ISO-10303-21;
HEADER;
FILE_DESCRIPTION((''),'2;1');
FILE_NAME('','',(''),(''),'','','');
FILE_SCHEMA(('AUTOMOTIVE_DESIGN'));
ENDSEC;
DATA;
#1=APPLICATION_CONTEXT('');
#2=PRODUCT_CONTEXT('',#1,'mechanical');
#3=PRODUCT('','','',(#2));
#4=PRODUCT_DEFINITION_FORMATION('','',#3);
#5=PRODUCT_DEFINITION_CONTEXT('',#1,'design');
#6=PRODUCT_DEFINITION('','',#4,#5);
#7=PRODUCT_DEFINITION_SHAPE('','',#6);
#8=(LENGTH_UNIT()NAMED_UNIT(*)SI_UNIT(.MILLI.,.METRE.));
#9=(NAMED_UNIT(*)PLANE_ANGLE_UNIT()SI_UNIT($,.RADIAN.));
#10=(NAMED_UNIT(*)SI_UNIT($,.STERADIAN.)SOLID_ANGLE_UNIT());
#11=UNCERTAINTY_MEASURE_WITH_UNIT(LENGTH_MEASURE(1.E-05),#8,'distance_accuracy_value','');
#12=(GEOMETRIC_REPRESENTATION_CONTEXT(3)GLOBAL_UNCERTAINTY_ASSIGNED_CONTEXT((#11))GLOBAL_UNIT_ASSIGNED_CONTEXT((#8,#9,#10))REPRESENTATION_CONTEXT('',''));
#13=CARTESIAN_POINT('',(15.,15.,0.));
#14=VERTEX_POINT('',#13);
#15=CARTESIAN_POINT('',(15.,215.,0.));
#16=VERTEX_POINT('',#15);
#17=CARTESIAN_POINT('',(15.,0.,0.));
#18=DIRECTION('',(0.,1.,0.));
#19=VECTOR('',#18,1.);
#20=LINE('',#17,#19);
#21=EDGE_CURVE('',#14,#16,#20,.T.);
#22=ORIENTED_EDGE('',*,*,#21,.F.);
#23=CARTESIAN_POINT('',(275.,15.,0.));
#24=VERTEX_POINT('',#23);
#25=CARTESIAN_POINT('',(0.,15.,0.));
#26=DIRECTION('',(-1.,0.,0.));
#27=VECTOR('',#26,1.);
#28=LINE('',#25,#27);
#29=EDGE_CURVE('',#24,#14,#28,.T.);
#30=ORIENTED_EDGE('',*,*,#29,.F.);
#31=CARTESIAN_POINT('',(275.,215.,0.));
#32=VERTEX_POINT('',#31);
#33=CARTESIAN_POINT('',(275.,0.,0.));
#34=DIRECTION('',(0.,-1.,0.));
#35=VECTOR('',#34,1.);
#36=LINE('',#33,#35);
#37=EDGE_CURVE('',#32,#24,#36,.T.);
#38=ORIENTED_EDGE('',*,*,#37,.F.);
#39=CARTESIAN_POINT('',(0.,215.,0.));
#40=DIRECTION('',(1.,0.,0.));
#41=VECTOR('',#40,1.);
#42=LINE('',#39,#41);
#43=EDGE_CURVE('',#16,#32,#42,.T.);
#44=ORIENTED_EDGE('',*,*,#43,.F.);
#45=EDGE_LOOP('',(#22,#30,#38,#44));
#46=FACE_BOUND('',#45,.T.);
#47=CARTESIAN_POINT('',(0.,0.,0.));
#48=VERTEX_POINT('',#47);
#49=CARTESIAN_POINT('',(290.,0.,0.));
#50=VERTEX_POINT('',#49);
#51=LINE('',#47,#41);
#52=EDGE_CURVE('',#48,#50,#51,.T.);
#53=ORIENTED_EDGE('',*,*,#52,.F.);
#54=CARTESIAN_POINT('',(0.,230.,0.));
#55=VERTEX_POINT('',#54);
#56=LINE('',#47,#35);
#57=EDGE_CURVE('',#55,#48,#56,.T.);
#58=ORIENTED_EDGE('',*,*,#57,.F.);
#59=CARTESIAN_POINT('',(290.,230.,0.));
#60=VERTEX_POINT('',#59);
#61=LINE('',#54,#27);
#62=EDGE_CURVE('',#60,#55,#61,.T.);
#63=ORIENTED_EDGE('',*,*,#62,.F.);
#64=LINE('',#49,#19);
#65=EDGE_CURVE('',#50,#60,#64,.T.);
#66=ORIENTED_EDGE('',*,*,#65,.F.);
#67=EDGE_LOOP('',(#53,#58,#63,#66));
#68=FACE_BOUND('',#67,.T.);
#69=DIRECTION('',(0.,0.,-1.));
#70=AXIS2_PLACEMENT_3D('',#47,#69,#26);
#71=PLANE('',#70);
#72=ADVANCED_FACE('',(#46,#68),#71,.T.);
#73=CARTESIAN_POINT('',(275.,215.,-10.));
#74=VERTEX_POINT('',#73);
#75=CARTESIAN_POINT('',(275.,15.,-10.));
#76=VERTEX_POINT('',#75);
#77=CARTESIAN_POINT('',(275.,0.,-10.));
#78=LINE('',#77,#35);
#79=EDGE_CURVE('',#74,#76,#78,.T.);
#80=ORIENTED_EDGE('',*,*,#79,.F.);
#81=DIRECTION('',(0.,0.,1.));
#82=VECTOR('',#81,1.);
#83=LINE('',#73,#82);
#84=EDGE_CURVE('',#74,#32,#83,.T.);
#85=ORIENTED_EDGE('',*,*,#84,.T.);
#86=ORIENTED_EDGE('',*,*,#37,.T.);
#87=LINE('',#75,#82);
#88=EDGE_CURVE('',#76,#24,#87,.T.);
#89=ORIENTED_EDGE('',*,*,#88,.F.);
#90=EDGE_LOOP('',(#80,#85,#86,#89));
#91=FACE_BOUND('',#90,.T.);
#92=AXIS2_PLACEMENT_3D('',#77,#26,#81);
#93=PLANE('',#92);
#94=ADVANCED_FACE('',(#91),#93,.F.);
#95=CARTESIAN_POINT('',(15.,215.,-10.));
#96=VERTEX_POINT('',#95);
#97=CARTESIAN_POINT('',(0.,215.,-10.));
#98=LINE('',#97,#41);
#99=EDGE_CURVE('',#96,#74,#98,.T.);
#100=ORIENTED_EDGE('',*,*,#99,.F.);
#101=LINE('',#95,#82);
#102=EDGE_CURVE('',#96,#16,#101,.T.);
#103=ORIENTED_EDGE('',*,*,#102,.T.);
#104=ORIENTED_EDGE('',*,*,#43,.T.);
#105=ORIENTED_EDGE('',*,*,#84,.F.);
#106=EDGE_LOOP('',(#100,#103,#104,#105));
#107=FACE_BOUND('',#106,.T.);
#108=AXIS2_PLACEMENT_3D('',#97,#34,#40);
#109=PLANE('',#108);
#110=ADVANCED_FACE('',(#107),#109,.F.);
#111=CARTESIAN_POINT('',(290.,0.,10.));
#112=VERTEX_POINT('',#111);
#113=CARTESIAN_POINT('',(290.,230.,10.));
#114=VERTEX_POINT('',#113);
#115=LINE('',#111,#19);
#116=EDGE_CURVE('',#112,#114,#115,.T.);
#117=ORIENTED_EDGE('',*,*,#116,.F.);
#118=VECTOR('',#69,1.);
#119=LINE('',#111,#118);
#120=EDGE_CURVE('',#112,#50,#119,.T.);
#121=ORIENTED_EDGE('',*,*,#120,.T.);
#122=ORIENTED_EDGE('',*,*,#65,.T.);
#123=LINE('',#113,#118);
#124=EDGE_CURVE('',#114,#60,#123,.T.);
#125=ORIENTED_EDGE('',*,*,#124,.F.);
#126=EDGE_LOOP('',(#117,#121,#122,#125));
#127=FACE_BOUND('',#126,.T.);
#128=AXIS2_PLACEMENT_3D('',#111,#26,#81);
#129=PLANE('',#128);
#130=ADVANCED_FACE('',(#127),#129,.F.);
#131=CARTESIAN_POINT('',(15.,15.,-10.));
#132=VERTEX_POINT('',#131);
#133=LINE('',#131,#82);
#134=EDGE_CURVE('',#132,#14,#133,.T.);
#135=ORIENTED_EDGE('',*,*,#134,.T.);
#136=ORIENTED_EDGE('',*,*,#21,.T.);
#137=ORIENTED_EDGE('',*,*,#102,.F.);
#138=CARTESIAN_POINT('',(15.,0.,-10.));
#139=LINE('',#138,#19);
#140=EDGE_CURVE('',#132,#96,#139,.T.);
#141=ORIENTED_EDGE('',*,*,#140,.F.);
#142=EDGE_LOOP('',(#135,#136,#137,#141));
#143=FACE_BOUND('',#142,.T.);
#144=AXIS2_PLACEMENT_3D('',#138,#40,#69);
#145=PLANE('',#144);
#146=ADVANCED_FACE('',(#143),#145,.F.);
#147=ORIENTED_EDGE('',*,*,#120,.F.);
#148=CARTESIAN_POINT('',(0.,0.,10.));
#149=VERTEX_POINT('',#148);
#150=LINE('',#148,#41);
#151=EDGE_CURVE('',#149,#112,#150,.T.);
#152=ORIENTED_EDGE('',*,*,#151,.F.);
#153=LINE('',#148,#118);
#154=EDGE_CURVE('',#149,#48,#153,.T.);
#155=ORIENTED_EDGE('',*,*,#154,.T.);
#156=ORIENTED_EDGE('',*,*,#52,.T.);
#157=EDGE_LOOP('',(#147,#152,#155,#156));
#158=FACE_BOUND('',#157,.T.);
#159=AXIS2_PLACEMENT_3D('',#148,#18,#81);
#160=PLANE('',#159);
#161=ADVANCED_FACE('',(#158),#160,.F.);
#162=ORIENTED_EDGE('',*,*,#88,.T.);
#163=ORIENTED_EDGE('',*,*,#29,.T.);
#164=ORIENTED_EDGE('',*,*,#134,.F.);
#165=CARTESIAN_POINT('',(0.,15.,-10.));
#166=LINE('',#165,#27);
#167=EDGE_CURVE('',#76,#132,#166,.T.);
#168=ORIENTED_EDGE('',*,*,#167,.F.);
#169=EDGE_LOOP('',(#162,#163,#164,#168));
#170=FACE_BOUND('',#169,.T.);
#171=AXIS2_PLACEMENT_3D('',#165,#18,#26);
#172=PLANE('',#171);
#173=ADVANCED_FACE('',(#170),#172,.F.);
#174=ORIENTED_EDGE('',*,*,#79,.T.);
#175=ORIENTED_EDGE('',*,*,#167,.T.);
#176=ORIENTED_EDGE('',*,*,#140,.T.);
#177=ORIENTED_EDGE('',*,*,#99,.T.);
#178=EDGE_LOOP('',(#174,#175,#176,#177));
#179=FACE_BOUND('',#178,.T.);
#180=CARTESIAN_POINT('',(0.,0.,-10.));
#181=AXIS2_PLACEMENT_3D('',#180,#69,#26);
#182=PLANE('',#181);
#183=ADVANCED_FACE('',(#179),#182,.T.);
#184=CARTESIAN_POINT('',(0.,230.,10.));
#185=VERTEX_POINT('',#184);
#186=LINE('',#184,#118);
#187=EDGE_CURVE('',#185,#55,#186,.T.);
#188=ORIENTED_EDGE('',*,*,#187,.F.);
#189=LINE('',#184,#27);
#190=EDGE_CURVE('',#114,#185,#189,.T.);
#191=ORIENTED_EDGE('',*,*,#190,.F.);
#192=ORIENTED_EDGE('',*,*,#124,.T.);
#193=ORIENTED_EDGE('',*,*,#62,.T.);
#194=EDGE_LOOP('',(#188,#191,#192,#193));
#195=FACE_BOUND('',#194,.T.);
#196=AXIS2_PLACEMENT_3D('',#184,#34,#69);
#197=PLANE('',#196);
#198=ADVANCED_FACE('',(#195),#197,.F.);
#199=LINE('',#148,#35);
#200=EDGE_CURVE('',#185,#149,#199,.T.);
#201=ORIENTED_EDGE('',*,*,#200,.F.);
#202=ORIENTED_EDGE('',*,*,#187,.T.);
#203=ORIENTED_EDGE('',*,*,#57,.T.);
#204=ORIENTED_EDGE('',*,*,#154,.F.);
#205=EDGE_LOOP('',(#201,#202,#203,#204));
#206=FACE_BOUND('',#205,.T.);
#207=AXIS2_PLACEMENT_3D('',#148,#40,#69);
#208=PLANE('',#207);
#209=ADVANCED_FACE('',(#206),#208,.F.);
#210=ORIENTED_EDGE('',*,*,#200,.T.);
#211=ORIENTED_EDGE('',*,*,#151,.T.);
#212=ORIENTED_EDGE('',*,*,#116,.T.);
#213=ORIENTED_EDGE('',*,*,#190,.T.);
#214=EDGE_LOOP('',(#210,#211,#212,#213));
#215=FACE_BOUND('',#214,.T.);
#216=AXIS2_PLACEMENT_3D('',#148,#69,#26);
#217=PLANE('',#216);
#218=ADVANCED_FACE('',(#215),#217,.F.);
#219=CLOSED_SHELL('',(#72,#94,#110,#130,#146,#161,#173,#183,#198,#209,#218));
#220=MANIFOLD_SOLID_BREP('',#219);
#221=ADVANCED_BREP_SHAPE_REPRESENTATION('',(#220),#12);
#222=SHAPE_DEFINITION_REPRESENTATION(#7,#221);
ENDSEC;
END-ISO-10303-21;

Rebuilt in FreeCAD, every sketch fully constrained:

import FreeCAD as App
import Part
import Sketcher

V = App.Vector
Q = App.Units.Quantity

doc = App.newDocument("Part")
params = doc.addObject("Spreadsheet::Sheet", "Params")
for row, (alias, value) in enumerate([
    ("sketch1_width", "290 mm"),
    ("sketch1_height", "230 mm"),
    ("pad1_length", "10 mm"),
    ("sketch2_width", "260 mm"),
    ("sketch2_height", "200 mm"),
    ("pad2_length", "10 mm"),
], start=1):
    params.set(f"A{row}", alias)
    params.set(f"B{row}", "=" + value)
    params.setAlias(f"B{row}", alias)

body = doc.addObject("PartDesign::Body", "Body")

sketch1 = body.newObject("Sketcher::SketchObject", "Sketch")
sketch1.AttachmentSupport = (doc.getObject("XY_Plane"), [""])
sketch1.MapMode = "FlatFace"
sketch1.addGeometry([
    Part.LineSegment(V(0, 230, 0), V(0, 0, 0)),
    Part.LineSegment(V(0, 0, 0), V(290, 0, 0)),
    Part.LineSegment(V(290, 0, 0), V(290, 230, 0)),
    Part.LineSegment(V(290, 230, 0), V(0, 230, 0)),
], False)
sketch1.addConstraint([
    Sketcher.Constraint("Coincident", 0, 2, 1, 1),
    Sketcher.Constraint("Coincident", 1, 2, 2, 1),
    Sketcher.Constraint("Coincident", 2, 2, 3, 1),
    Sketcher.Constraint("Coincident", 3, 2, 0, 1),
    Sketcher.Constraint("Vertical", 0),
    Sketcher.Constraint("Horizontal", 1),
    Sketcher.Constraint("Vertical", 2),
    Sketcher.Constraint("Horizontal", 3),
    Sketcher.Constraint("Coincident", 0, 2, -1, 1),
    Sketcher.Constraint("DistanceX", 1, 1, 1, 2, Q("290 mm")),
    Sketcher.Constraint("DistanceY", 0, 2, 0, 1, Q("230 mm")),
])
sketch1.setExpression("Constraints[9]", "Params.sketch1_width")
sketch1.setExpression("Constraints[10]", "Params.sketch1_height")
pad1 = body.newObject("PartDesign::Pad", "Pad")
pad1.Profile = sketch1
pad1.setExpression("Length", "Params.pad1_length")

sketch2 = body.newObject("Sketcher::SketchObject", "Sketch001")
sketch2.AttachmentSupport = (doc.getObject("XY_Plane"), [""])
sketch2.MapMode = "FlatFace"
sketch2.addGeometry([
    Part.LineSegment(V(275, 215, 0), V(275, 15, 0)),
    Part.LineSegment(V(275, 15, 0), V(15, 15, 0)),
    Part.LineSegment(V(15, 15, 0), V(15, 215, 0)),
    Part.LineSegment(V(15, 215, 0), V(275, 215, 0)),
], False)
sketch2.addConstraint([
    Sketcher.Constraint("Coincident", 0, 2, 1, 1),
    Sketcher.Constraint("Coincident", 1, 2, 2, 1),
    Sketcher.Constraint("Coincident", 2, 2, 3, 1),
    Sketcher.Constraint("Coincident", 3, 2, 0, 1),
    Sketcher.Constraint("Vertical", 0),
    Sketcher.Constraint("Horizontal", 1),
    Sketcher.Constraint("Vertical", 2),
    Sketcher.Constraint("Horizontal", 3),
    Sketcher.Constraint("DistanceX", 1, 2, 1, 1, Q("260 mm")),
    Sketcher.Constraint("DistanceY", 0, 2, 0, 1, Q("200 mm")),
    Sketcher.Constraint("DistanceX", -1, 1, 0, 2, Q("275 mm")),
    Sketcher.Constraint("DistanceY", -1, 1, 0, 2, Q("15 mm")),
])
sketch2.setExpression("Constraints[8]", "Params.sketch2_width")
sketch2.setExpression("Constraints[9]", "Params.sketch2_height")
pad2 = body.newObject("PartDesign::Pad", "Pad001")
pad2.Profile = sketch2
pad2.setExpression("Length", "Params.pad2_length")
pad2.Reversed = True

doc.recompute()
